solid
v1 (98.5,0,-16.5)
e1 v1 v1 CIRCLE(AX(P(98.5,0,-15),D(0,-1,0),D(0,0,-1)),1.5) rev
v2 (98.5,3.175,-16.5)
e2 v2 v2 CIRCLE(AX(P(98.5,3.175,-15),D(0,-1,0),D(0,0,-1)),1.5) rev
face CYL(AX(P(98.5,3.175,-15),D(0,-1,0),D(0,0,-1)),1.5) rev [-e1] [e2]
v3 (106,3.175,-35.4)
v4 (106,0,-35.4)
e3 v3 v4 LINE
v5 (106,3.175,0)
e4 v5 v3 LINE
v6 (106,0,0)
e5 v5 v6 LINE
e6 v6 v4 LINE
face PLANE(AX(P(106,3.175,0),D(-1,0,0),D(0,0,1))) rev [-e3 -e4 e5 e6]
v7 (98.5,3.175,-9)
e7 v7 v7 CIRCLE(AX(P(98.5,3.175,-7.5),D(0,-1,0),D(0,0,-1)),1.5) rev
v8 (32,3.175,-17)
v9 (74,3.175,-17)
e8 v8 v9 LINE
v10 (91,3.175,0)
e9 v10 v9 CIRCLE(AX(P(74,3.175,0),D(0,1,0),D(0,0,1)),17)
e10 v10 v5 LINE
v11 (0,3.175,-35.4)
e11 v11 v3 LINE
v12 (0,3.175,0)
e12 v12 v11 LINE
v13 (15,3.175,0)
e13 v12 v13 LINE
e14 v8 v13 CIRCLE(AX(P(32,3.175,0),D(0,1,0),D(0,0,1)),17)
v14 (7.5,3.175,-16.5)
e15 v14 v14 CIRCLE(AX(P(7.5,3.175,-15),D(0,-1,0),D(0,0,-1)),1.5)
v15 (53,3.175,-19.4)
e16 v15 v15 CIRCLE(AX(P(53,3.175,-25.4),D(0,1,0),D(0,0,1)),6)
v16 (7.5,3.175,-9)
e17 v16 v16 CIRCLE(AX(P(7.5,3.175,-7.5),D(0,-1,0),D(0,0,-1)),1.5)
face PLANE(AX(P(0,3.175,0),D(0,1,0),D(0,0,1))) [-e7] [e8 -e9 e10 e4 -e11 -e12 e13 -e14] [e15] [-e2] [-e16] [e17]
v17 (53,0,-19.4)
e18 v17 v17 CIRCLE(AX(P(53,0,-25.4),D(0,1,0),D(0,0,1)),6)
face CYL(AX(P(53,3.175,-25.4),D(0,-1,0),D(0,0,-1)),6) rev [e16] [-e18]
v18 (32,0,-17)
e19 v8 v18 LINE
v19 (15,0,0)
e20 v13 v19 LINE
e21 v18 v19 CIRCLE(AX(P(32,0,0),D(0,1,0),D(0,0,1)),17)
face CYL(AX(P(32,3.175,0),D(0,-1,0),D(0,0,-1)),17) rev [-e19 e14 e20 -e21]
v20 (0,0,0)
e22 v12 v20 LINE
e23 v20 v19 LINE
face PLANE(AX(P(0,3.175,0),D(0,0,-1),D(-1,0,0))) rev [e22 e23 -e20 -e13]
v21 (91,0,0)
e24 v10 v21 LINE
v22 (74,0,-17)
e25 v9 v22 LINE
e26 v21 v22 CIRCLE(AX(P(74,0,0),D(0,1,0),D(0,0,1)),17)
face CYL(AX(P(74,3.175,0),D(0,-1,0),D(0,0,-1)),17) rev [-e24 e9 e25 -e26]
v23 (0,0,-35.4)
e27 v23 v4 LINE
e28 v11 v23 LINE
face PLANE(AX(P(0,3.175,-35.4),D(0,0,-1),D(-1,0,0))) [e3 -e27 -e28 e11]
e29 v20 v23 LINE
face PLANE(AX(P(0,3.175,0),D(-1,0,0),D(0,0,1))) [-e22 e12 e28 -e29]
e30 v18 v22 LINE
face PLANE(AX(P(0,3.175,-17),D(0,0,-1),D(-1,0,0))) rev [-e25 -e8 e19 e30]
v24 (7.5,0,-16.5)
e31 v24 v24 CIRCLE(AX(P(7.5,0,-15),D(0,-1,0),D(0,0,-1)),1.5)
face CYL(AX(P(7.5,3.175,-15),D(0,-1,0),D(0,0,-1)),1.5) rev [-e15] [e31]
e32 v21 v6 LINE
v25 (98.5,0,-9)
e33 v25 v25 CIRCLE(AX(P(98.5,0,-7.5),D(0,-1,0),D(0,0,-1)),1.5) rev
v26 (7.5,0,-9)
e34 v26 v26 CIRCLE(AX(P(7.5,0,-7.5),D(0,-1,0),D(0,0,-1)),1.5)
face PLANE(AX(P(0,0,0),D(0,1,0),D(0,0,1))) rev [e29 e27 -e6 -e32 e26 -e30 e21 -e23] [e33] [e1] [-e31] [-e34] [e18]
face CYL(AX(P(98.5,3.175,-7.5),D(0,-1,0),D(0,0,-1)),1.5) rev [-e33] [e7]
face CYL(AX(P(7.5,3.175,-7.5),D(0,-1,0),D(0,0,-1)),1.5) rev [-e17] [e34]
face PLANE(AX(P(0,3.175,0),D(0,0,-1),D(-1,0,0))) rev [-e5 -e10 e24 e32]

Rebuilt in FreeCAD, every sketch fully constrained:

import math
import FreeCAD as App
import Part
import Sketcher
from FreeCAD import Vector
Q = App.Units.Quantity

doc = App.newDocument("Part")
body = doc.addObject("PartDesign::Body", "Body")

# Sketch on XZ plane
sketch1 = body.newObject("Sketcher::SketchObject", "Sketch")
sketch1.AttachmentSupport = (doc.getObject("XZ_Plane"), [""])
sketch1.MapMode = "FlatFace"
sketch1.addGeometry([
    Part.ArcOfCircle(Part.Circle(Vector(74, 0, 0), Vector(0, 0, 1), 17), math.radians(-90), math.radians(-60)),  # 0
    Part.ArcOfCircle(Part.Circle(Vector(74, 0, 0), Vector(0, 0, 1), 17), math.radians(-60), math.radians(0)),  # 1
    Part.LineSegment(Vector(91, 0, 0), Vector(106, 0, 0)),  # 2
    Part.LineSegment(Vector(106, 0, 0), Vector(106, -35, 0)),  # 3
    Part.LineSegment(Vector(106, -35, 0), Vector(0, -35, 0)),  # 4
    Part.LineSegment(Vector(0, -35, 0), Vector(0, 0, 0)),  # 5
    Part.LineSegment(Vector(0, 0, 0), Vector(15, 0, 0)),  # 6
    Part.ArcOfCircle(Part.Circle(Vector(32, 0, 0), Vector(0, 0, 1), 17), math.radians(-180), math.radians(-120)),  # 7
    Part.ArcOfCircle(Part.Circle(Vector(32, 0, 0), Vector(0, 0, 1), 17), math.radians(-120), math.radians(-90)),  # 8
    Part.LineSegment(Vector(32, -17, 0), Vector(74, -17, 0)),  # 9
    Part.ArcOfCircle(Part.Circle(Vector(53, -25, 0), Vector(0, 0, 1), 6), math.radians(0), math.radians(90)),  # 10
    Part.ArcOfCircle(Part.Circle(Vector(53, -25, 0), Vector(0, 0, 1), 6), math.radians(90), math.radians(270)),  # 11
    Part.ArcOfCircle(Part.Circle(Vector(53, -25, 0), Vector(0, 0, 1), 6), math.radians(-90), math.radians(0)),  # 12
], False)
sketch1.addConstraint([
    Sketcher.Constraint("Tangent", 0, 2, 1, 1),
    Sketcher.Constraint("Coincident", 1, 2, 2, 1),
    Sketcher.Constraint("Coincident", 2, 2, 3, 1),
    Sketcher.Constraint("Coincident", 3, 2, 4, 1),
    Sketcher.Constraint("Coincident", 4, 2, 5, 1),
    Sketcher.Constraint("Coincident", 5, 2, 6, 1),
    Sketcher.Constraint("Coincident", 6, 2, 7, 1),
    Sketcher.Constraint("Tangent", 7, 2, 8, 1),
    Sketcher.Constraint("Tangent", 8, 2, 9, 1),
    Sketcher.Constraint("Tangent", 9, 2, 0, 1),
    Sketcher.Constraint("Tangent", 10, 2, 11, 1),
    Sketcher.Constraint("Tangent", 11, 2, 12, 1),
    Sketcher.Constraint("Tangent", 12, 2, 10, 1),
    Sketcher.Constraint("Horizontal", 2),
    Sketcher.Constraint("Vertical", 3),
    Sketcher.Constraint("Horizontal", 4),
    Sketcher.Constraint("Vertical", 5),
    Sketcher.Constraint("Horizontal", 6),
    Sketcher.Constraint("Horizontal", 9),
    Sketcher.Constraint("Coincident", 5, 2, -1, 1),
    Sketcher.Constraint("Equal", 0, 1),
    Sketcher.Constraint("Equal", 1, 7),
    Sketcher.Constraint("Equal", 7, 8),
    Sketcher.Constraint("PointOnObject", 0, 3, -1),
    Sketcher.Constraint("PointOnObject", 1, 2, -1),
    Sketcher.Constraint("Horizontal", 0, 2, 7, 2),
    Sketcher.Constraint("Horizontal", 11, 3, 12, 2),
    Sketcher.Constraint("Vertical", 12, 3, 10, 2),
    Sketcher.Constraint("Vertical", 10, 2, 11, 2),
    Sketcher.Constraint("Equal", 2, 6),
    Sketcher.Constraint("Radius", 0, Q("17 mm")),
    Sketcher.Constraint("Radius", 10, Q("6 mm")),
    Sketcher.Constraint("DistanceX", 2, 1, 2, 2, Q("15 mm")),
    Sketcher.Constraint("DistanceX", 4, 2, 4, 1, Q("106 mm")),
    Sketcher.Constraint("DistanceY", 3, 2, 3, 1, Q("35.4 mm")),
    Sketcher.Constraint("DistanceX", -1, 1, 10, 3, Q("53 mm")),
    Sketcher.Constraint("DistanceY", 4, 2, 10, 3, Q("10 mm")),
    Sketcher.Constraint("DistanceX", -1, 1, 0, 2, Q("82.5 mm")),
])
pad1 = body.newObject("PartDesign::Pad", "Pad")
pad1.Profile = sketch1
pad1.Length = 3.175
pad1.Reversed = True

# Sketch on XZ plane
sketch2 = body.newObject("Sketcher::SketchObject", "Sketch001")
sketch2.AttachmentSupport = (doc.getObject("XZ_Plane"), [""])
sketch2.MapMode = "FlatFace"
sketch2.addGeometry([
    Part.ArcOfCircle(Part.Circle(Vector(7.5, -15, 0), Vector(0, 0, 1), 1.5), math.radians(0), math.radians(90)),  # 0
    Part.ArcOfCircle(Part.Circle(Vector(7.5, -15, 0), Vector(0, 0, 1), 1.5), math.radians(90), math.radians(270)),  # 1
    Part.ArcOfCircle(Part.Circle(Vector(7.5, -15, 0), Vector(0, 0, 1), 1.5), math.radians(-90), math.radians(0)),  # 2
    Part.Circle(Vector(98.5, -15, 0), Vector(0, 0, 1), 1.5),  # 3
    Part.Circle(Vector(98.5, -7.5, 0), Vector(0, 0, 1), 1.5),  # 4
    Part.Circle(Vector(7.5, -7.5, 0), Vector(0, 0, 1), 1.5),  # 5
], False)
sketch2.addConstraint([
    Sketcher.Constraint("Tangent", 0, 2, 1, 1),
    Sketcher.Constraint("Tangent", 1, 2, 2, 1),
    Sketcher.Constraint("Tangent", 2, 2, 0, 1),
    Sketcher.Constraint("Equal", 2, 3),
    Sketcher.Constraint("Equal", 3, 4),
    Sketcher.Constraint("Equal", 4, 5),
    Sketcher.Constraint("Horizontal", 2, 3, 3, 3),
    Sketcher.Constraint("Horizontal", 4, 3, 5, 3),
    Sketcher.Constraint("Horizontal", 3, 3, 2, 2),
    Sketcher.Constraint("Vertical", 3, 3, 4, 3),
    Sketcher.Constraint("Vertical", 2, 3, 5, 3),
    Sketcher.Constraint("Vertical", 5, 3, 0, 2),
    Sketcher.Constraint("Vertical", 0, 2, 1, 2),
    Sketcher.Constraint("Diameter", 3, Q("3 mm")),
    Sketcher.Constraint("DistanceY", 0, 3, -1, 1, Q("15 mm")),
    Sketcher.Constraint("DistanceX", -1, 1, 2, 2, Q("9 mm")),
    Sketcher.Constraint("DistanceX", 0, 3, 3, 3, Q("91 mm")),
    Sketcher.Constraint("DistanceY", 0, 2, 5, 3, Q("6 mm")),
])
pocket1 = body.newObject("PartDesign::Pocket", "Pocket")
pocket1.Profile = sketch2
pocket1.Type = "ThroughAll"

doc.recompute()
